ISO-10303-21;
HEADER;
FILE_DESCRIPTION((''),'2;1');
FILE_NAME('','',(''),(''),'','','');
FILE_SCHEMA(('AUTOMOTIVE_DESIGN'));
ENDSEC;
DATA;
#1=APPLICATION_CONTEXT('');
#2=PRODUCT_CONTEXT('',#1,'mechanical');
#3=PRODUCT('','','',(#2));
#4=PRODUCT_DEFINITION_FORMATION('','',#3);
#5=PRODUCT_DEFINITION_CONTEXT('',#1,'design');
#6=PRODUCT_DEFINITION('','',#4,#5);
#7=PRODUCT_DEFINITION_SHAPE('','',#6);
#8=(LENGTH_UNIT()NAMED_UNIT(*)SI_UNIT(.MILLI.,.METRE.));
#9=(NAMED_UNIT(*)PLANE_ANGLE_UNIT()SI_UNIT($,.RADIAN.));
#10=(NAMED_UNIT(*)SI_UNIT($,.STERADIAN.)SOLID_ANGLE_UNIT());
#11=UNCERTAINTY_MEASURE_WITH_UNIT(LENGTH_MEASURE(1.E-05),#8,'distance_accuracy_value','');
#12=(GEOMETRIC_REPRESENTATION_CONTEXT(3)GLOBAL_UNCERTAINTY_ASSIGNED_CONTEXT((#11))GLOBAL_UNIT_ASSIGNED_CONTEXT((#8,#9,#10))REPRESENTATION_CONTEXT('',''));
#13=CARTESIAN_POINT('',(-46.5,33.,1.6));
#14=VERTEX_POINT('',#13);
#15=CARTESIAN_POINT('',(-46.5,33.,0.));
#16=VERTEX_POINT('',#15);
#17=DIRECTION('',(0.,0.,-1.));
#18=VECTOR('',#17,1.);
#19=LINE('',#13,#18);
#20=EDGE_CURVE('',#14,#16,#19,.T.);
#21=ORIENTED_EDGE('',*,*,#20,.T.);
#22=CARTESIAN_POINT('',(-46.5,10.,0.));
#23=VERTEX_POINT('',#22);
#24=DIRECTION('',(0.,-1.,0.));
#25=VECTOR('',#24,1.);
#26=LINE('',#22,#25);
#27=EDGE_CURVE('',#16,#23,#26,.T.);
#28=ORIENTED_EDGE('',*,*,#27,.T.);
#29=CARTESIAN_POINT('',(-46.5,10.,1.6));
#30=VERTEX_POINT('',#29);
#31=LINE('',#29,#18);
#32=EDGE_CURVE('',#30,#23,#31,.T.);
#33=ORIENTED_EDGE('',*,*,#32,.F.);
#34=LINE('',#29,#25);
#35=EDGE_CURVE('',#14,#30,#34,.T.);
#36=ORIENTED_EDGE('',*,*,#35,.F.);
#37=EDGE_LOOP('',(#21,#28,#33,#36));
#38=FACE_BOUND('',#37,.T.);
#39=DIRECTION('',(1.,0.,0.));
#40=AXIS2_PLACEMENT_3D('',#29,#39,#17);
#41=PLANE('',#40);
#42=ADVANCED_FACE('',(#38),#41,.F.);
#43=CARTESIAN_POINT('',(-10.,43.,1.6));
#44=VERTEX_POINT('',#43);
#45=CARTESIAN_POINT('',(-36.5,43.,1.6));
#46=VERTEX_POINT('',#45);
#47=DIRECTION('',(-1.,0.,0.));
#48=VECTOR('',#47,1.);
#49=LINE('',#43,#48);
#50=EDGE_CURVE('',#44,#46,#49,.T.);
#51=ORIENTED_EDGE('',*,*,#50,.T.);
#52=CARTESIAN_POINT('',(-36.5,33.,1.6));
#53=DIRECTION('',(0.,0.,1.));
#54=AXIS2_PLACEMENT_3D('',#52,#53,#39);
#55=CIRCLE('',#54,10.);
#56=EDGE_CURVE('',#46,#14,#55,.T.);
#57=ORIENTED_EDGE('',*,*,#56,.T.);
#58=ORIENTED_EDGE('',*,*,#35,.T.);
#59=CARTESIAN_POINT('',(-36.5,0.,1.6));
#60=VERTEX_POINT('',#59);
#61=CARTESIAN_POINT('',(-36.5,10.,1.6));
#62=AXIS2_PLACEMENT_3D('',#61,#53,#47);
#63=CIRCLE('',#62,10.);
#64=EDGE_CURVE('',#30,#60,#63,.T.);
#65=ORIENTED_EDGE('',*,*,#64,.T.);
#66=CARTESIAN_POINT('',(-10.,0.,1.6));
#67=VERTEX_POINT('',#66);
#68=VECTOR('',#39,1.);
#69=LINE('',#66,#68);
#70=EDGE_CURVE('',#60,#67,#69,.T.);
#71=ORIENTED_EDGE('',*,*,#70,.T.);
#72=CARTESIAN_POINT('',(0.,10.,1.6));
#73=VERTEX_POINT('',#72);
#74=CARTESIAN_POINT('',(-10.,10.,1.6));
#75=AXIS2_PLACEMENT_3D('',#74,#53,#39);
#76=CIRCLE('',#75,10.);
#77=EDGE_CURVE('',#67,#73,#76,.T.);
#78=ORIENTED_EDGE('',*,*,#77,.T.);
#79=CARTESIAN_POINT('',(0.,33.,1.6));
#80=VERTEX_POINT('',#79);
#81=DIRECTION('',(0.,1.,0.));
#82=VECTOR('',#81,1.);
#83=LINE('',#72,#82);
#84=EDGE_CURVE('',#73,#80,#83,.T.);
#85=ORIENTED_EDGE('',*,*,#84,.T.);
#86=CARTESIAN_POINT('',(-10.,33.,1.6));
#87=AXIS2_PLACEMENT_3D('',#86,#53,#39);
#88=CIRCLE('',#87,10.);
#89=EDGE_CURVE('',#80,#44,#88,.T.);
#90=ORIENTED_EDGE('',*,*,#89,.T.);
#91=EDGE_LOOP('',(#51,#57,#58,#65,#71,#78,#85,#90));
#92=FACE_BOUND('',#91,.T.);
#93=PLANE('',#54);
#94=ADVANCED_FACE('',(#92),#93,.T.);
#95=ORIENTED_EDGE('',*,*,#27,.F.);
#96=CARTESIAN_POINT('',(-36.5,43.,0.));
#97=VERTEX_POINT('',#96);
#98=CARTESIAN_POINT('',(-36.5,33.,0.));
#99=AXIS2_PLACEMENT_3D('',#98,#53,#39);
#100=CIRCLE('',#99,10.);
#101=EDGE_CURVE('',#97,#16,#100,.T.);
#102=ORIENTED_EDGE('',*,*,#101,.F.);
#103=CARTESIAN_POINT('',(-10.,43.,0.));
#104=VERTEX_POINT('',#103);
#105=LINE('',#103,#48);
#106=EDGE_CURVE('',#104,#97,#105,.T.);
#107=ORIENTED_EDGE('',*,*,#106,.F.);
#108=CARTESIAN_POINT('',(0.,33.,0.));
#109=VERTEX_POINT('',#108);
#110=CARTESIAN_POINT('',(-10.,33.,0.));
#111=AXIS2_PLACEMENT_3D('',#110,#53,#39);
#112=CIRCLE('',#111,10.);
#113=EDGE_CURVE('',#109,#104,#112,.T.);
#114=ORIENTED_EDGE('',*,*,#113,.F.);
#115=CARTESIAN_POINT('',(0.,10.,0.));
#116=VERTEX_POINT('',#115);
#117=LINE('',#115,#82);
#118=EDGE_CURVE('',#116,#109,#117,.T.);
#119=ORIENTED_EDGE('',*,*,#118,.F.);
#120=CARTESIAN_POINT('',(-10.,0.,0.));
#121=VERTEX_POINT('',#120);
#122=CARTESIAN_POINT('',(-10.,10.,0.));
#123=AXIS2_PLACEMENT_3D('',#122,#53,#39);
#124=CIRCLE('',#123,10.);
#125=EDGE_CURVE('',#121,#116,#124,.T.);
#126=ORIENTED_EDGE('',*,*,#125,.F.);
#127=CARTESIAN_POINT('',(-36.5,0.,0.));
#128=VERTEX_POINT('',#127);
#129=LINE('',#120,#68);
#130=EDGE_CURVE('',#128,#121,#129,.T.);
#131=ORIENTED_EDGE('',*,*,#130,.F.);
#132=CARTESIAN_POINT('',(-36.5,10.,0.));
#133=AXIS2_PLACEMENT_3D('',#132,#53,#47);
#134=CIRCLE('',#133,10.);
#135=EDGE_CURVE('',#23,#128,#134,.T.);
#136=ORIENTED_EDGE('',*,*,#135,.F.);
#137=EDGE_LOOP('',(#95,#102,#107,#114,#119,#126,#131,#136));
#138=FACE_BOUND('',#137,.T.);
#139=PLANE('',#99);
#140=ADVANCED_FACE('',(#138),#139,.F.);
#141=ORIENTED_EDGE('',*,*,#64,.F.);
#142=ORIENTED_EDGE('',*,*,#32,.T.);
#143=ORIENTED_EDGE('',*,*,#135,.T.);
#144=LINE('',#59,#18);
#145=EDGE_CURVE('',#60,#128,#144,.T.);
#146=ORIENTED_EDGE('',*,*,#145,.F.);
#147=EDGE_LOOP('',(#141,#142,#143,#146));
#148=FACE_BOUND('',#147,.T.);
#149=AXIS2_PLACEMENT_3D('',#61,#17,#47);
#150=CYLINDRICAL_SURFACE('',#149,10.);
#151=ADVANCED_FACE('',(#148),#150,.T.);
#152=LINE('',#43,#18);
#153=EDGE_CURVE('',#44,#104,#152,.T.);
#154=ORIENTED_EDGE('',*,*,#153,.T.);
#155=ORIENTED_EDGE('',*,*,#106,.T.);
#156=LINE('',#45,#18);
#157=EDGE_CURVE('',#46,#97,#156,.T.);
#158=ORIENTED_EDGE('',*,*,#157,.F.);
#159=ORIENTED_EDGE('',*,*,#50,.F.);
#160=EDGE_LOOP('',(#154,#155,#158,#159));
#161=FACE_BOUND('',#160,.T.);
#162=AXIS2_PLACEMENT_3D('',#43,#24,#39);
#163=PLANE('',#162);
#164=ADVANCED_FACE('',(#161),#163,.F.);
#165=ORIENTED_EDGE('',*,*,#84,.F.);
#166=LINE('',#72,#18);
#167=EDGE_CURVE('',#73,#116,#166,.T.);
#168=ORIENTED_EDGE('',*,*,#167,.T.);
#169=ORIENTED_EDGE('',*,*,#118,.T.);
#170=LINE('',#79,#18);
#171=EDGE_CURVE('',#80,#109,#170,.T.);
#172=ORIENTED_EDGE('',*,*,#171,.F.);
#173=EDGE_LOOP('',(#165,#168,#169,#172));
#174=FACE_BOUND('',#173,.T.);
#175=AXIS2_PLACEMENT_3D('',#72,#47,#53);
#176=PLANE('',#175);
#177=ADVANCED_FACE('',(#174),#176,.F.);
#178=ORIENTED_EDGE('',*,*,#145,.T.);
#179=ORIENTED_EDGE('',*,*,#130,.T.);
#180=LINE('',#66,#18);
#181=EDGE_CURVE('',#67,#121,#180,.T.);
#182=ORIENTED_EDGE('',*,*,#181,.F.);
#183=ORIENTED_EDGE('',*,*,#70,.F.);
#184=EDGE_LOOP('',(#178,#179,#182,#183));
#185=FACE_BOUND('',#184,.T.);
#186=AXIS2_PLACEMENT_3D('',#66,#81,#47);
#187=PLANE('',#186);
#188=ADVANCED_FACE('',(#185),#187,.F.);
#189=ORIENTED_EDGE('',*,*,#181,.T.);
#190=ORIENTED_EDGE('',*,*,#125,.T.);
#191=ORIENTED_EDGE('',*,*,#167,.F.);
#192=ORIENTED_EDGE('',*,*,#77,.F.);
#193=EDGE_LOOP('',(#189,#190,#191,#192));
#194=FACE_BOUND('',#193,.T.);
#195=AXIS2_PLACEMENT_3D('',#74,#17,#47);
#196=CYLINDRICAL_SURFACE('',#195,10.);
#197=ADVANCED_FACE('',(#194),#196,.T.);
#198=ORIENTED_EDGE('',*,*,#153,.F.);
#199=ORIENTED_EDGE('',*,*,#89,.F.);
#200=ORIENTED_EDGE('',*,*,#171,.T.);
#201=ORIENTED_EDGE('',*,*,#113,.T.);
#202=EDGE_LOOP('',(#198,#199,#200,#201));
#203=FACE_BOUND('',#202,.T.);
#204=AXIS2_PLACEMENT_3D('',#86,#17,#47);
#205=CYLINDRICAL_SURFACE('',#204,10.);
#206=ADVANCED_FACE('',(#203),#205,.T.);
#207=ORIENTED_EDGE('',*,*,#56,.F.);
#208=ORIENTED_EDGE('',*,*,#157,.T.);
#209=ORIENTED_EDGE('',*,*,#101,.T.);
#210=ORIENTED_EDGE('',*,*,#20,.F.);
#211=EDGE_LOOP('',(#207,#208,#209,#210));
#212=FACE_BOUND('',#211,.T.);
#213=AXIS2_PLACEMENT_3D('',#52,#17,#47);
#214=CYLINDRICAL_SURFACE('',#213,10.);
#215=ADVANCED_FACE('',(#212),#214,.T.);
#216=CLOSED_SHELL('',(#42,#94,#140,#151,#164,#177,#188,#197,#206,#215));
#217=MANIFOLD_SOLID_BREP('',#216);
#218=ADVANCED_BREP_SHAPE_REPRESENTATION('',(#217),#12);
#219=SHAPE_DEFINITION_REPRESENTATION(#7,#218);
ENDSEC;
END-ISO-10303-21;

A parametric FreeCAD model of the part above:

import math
import FreeCAD as App
import Part
import Sketcher

V = App.Vector
Q = App.Units.Quantity

doc = App.newDocument("Part")
params = doc.addObject("Spreadsheet::Sheet", "Params")
for row, (alias, value) in enumerate([
    ("sketch1_radius", "10 mm"),
    ("sketch1_height", "23 mm"),
    ("sketch1_width", "26.5 mm"),
    ("pad1_length", "1.6 mm"),
], start=1):
    params.set(f"A{row}", alias)
    params.set(f"B{row}", "=" + value)
    params.setAlias(f"B{row}", alias)

body = doc.addObject("PartDesign::Body", "Body")

sketch1 = body.newObject("Sketcher::SketchObject", "Sketch")
sketch1.AttachmentSupport = (doc.getObject("XY_Plane"), [""])
sketch1.MapMode = "FlatFace"
sketch1.addGeometry(Part.LineSegment(V(-36, 0, 0), V(-10, 0, 0)), False)
sketch1.addGeometry(Part.ArcOfCircle(Part.Circle(V(-10, 10, 0), V(0, 0, 1), 10), math.radians(-90), math.radians(0)), False)
sketch1.addGeometry(Part.LineSegment(V(0, 10, 0), V(0, 33, 0)), False)
sketch1.addGeometry(Part.ArcOfCircle(Part.Circle(V(-10, 33, 0), V(0, 0, 1), 10), math.radians(0), math.radians(90)), False)
sketch1.addGeometry(Part.LineSegment(V(-10, 43, 0), V(-36, 43, 0)), False)
sketch1.addGeometry(Part.ArcOfCircle(Part.Circle(V(-36, 33, 0), V(0, 0, 1), 10), math.radians(90), math.radians(180)), False)
sketch1.addGeometry(Part.LineSegment(V(-46, 33, 0), V(-46, 10, 0)), False)
sketch1.addGeometry(Part.ArcOfCircle(Part.Circle(V(-36, 10, 0), V(0, 0, 1), 10), math.radians(180), math.radians(270)), False)
sketch1.addConstraint(Sketcher.Constraint("Tangent", 0, 2, 1, 1))
sketch1.addConstraint(Sketcher.Constraint("Tangent", 1, 2, 2, 1))
sketch1.addConstraint(Sketcher.Constraint("Tangent", 2, 2, 3, 1))
sketch1.addConstraint(Sketcher.Constraint("Tangent", 3, 2, 4, 1))
sketch1.addConstraint(Sketcher.Constraint("Tangent", 4, 2, 5, 1))
sketch1.addConstraint(Sketcher.Constraint("Tangent", 5, 2, 6, 1))
sketch1.addConstraint(Sketcher.Constraint("Tangent", 6, 2, 7, 1))
sketch1.addConstraint(Sketcher.Constraint("Tangent", 7, 2, 0, 1))
sketch1.addConstraint(Sketcher.Constraint("Horizontal", 0))
sketch1.addConstraint(Sketcher.Constraint("Vertical", 2))
sketch1.addConstraint(Sketcher.Constraint("Horizontal", 4))
sketch1.addConstraint(Sketcher.Constraint("Vertical", 6))
sketch1.addConstraint(Sketcher.Constraint("Equal", 1, 3))
sketch1.addConstraint(Sketcher.Constraint("Equal", 3, 5))
sketch1.addConstraint(Sketcher.Constraint("Equal", 5, 7))
sketch1.addConstraint(Sketcher.Constraint("PointOnObject", 0, 2, -1))
sketch1.addConstraint(Sketcher.Constraint("PointOnObject", 1, 2, -2))
sketch1.addConstraint(Sketcher.Constraint("Radius", 1, Q("10 mm")))
sketch1.addConstraint(Sketcher.Constraint("DistanceY", 2, 1, 2, 2, Q("23 mm")))
sketch1.addConstraint(Sketcher.Constraint("DistanceX", 0, 1, 0, 2, Q("26.5 mm")))
sketch1.setExpression("Constraints[17]", "Params.sketch1_radius")
sketch1.setExpression("Constraints[18]", "Params.sketch1_height")
sketch1.setExpression("Constraints[19]", "Params.sketch1_width")
pad1 = body.newObject("PartDesign::Pad", "Pad")
pad1.Profile = sketch1
pad1.setExpression("Length", "Params.pad1_length")

doc.recompute()
